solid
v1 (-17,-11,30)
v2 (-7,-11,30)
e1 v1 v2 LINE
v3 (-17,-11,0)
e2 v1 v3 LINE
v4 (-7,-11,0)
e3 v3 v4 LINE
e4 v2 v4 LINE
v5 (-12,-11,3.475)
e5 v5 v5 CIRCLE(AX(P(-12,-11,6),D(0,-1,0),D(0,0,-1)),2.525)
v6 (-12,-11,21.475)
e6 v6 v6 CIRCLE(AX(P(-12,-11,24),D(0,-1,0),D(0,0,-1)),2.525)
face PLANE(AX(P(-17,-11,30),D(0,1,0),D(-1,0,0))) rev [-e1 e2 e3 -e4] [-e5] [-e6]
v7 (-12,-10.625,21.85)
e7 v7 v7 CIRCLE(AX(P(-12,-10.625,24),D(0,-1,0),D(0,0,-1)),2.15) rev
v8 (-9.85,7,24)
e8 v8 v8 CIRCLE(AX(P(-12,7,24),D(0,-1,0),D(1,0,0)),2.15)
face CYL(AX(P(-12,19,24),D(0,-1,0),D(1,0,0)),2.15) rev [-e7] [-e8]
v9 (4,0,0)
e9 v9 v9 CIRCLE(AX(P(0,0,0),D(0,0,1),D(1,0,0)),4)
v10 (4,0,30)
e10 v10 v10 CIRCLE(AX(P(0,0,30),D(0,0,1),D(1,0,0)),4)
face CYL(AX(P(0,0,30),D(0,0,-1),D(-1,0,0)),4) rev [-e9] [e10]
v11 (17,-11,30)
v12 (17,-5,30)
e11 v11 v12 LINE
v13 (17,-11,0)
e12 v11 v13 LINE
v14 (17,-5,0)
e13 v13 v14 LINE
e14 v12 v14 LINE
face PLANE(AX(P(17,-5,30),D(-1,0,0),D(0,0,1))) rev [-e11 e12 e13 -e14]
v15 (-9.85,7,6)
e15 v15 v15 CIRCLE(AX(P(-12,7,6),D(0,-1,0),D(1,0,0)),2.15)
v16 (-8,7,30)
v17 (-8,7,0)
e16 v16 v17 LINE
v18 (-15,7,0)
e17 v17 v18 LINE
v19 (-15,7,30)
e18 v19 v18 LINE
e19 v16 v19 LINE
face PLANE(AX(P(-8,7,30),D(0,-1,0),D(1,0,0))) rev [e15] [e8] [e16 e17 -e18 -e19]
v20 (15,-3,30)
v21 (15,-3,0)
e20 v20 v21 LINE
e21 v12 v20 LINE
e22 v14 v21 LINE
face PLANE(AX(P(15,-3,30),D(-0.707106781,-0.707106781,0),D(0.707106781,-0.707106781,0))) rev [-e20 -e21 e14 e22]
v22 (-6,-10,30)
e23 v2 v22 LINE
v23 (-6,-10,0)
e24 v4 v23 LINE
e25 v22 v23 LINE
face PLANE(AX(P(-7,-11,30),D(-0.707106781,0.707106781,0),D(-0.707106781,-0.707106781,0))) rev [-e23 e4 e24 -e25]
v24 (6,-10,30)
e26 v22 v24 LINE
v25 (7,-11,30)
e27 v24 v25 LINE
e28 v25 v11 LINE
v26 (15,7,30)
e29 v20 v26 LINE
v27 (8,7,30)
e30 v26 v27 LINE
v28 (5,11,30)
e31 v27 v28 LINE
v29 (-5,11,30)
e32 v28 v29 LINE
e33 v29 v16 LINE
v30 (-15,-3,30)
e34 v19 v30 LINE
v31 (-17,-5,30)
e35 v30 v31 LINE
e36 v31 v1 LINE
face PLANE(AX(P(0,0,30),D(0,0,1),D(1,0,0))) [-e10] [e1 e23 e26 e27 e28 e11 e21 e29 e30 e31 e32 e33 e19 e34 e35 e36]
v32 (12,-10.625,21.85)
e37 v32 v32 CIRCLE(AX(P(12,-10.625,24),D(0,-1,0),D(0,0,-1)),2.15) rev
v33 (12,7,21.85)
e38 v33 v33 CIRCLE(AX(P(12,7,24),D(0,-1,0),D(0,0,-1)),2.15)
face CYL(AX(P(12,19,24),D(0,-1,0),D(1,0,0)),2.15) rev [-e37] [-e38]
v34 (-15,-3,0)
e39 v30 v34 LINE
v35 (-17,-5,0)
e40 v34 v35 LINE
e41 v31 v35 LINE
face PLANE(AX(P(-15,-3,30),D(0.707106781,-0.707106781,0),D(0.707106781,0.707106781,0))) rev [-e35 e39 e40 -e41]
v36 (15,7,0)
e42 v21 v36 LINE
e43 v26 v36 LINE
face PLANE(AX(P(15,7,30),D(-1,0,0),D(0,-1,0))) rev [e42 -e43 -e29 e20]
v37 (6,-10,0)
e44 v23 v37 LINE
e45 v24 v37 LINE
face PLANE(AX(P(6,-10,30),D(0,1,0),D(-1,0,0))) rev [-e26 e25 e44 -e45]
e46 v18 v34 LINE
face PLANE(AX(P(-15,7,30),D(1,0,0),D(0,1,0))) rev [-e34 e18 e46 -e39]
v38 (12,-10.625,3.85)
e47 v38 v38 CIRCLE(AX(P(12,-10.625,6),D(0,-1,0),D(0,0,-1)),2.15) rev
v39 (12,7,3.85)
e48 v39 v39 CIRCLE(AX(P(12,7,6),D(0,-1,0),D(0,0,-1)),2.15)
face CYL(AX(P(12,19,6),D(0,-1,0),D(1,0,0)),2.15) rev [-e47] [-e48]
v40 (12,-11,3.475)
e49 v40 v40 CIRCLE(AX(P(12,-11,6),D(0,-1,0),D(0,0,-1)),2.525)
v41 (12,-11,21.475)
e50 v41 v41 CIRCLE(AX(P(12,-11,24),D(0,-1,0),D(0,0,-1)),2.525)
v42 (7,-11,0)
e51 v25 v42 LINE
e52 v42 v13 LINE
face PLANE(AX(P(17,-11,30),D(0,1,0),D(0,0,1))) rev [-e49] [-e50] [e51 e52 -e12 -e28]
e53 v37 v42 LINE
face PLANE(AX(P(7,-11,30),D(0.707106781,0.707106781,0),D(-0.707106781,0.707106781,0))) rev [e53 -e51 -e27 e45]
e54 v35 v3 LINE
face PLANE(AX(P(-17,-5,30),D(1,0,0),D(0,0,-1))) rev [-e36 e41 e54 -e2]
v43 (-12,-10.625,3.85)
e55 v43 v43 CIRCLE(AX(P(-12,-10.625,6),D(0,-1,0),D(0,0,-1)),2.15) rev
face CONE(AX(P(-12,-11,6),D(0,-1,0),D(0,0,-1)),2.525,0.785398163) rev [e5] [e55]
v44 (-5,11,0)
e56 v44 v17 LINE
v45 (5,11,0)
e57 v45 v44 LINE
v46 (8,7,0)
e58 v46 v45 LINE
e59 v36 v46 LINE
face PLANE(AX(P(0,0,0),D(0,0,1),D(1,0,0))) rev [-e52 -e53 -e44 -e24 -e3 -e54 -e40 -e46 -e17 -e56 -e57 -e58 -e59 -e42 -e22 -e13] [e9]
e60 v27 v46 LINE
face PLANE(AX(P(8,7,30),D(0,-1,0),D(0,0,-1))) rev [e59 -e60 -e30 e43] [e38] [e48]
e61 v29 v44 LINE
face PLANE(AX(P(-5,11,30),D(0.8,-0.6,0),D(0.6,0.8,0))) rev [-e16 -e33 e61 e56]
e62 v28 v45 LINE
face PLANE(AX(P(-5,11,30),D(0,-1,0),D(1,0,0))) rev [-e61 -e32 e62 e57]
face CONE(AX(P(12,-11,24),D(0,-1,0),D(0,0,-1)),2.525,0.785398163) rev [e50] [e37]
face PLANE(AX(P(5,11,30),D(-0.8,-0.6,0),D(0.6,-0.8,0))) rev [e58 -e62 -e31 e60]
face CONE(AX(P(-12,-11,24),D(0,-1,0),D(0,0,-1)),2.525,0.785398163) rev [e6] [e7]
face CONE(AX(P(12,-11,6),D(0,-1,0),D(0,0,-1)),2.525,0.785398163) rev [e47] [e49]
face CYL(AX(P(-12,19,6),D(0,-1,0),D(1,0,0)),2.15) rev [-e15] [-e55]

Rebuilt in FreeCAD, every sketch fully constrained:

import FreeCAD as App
import Part
import Sketcher
Q = App.Units.Quantity


def add_polygon(sketch, points):
    """Adds a closed chain of lines whose ends are joined by coincident constraints."""
    first, n = sketch.GeometryCount, len(points)
    for a, b in zip(points, points[1:] + points[:1]):
        sketch.addGeometry(Part.LineSegment(App.Vector(*a, 0), App.Vector(*b, 0)), False)
    for i in range(n):
        sketch.addConstraint(Sketcher.Constraint("Coincident", first + i, 2, first + (i + 1) % n, 1))

doc = App.newDocument("Part")
body = doc.addObject("PartDesign::Body", "Body")

# Sketch on XY plane
sketch1 = doc.addObject("Sketcher::SketchObject", "Sketch")
body.addObject(sketch1)
sketch1.AttachmentSupport = (doc.XY_Plane, [""])
sketch1.MapMode = "FlatFace"
add_polygon(sketch1, [(5, 11), (-5, 11), (-8, 7), (-15, 7), (-15, -3), (-17, -5), (-17, -11), (-7, -11), (-6, -10), (6, -10), (7, -11), (17, -11), (17, -5), (15, -3), (15, 7), (8, 7)])  # lines 0-15
sketch1.addGeometry(Part.Circle(App.Vector(0, 0, 0), App.Vector(0, 0, 1), 4), False)  # 16
sketch1.addConstraint([
    Sketcher.Constraint("Horizontal", 0),
    Sketcher.Constraint("Horizontal", 2),
    Sketcher.Constraint("Vertical", 3),
    Sketcher.Constraint("Vertical", 5),
    Sketcher.Constraint("Horizontal", 6),
    Sketcher.Constraint("Horizontal", 8),
    Sketcher.Constraint("Horizontal", 10),
    Sketcher.Constraint("Vertical", 11),
    Sketcher.Constraint("Vertical", 13),
    Sketcher.Constraint("Horizontal", 14),
    Sketcher.Constraint("Coincident", 16, 3, -1, 1),
    Sketcher.Constraint("Symmetric", 6, 2, 9, 2, -2),
    Sketcher.Constraint("Symmetric", 4, 2, 11, 2, -2),
    Sketcher.Constraint("Symmetric", 3, 2, 12, 2, -2),
    Sketcher.Constraint("Symmetric", 1, 2, 14, 2, -2),
    Sketcher.Constraint("Parallel", 4, 7),
    Sketcher.Constraint("Perpendicular", 7, 9),
    Sketcher.Constraint("Parallel", 9, 12),
    Sketcher.Constraint("Equal", 0, 6),
    Sketcher.Constraint("Equal", 10, 3),
    Sketcher.Constraint("Equal", 1, 15),
    Sketcher.Constraint("Diameter", 16, Q("8 mm")),
    Sketcher.Constraint("DistanceX", 0, 2, 0, 1, Q("10 mm")),
    Sketcher.Constraint("DistanceX", 2, 2, 2, 1, Q("7 mm")),
    Sketcher.Constraint("DistanceX", 8, 1, 8, 2, Q("12 mm")),
    Sketcher.Constraint("DistanceY", 5, 2, 5, 1, Q("6 mm")),
    Sketcher.Constraint("Distance", 1, Q("5 mm")),
    Sketcher.Constraint("DistanceY", -1, 1, 0, 2, Q("11 mm")),
    Sketcher.Constraint("DistanceX", 1, 2, -1, 1, Q("8 mm")),
    Sketcher.Constraint("DistanceX", 4, 2, -1, 1, Q("17 mm")),
])
pad1 = doc.addObject("PartDesign::Pad", "Pad")
body.addObject(pad1)
pad1.Profile = sketch1
pad1.Length = 30

# Sketch on XZ plane
sketch2 = doc.addObject("Sketcher::SketchObject", "Sketch001")
body.addObject(sketch2)
sketch2.AttachmentSupport = (doc.XZ_Plane, [""])
sketch2.MapMode = "FlatFace"
sketch2.AttachmentOffset = App.Placement(App.Vector(0, 0, 11), App.Rotation())
sketch2.addGeometry([
    Part.Circle(App.Vector(-12, 24, 0), App.Vector(0, 0, 1), 2.1),
    Part.Circle(App.Vector(-12, 6, 0), App.Vector(0, 0, 1), 2.1),
    Part.Circle(App.Vector(12, 24, 0), App.Vector(0, 0, 1), 2.1),
    Part.Circle(App.Vector(12, 6, 0), App.Vector(0, 0, 1), 2.1),
], False)
sketch2.addConstraint([
    Sketcher.Constraint("Equal", 0, 1),
    Sketcher.Constraint("Equal", 1, 2),
    Sketcher.Constraint("Equal", 2, 3),
    Sketcher.Constraint("Symmetric", 0, 3, 2, 3, -2),
    Sketcher.Constraint("Symmetric", 1, 3, 3, 3, -2),
    Sketcher.Constraint("Vertical", 0, 3, 1, 3),
    Sketcher.Constraint("Diameter", 0, Q("4.2 mm")),
    Sketcher.Constraint("DistanceX", 0, 3, -1, 1, Q("12 mm")),
    Sketcher.Constraint("DistanceY", -1, 1, 0, 3, Q("24 mm")),
    Sketcher.Constraint("DistanceY", -1, 1, 1, 3, Q("6 mm")),
])
doc.recompute()
hole = doc.addObject("PartDesign::Hole", "Hole")
body.addObject(hole)
hole.Profile = sketch2
hole.ThreadType = "None"
hole.Diameter = 4.2
hole.DepthType = "Dimension"
hole.Depth = 18
hole.DrillPoint = "Angled"
hole.DrillPointAngle = 118
hole.HoleCutType = "Countersink"
hole.HoleCutDiameter = 5.05
hole.HoleCutCountersinkAngle = 90

# Sketch on XZ plane
sketch3 = doc.addObject("Sketcher::SketchObject", "Sketch002")
body.addObject(sketch3)
sketch3.AttachmentSupport = (doc.XZ_Plane, [""])
sketch3.MapMode = "FlatFace"
sketch3.AttachmentOffset = App.Placement(App.Vector(0, 0, 11), App.Rotation())
sketch3.addGeometry([
    Part.Circle(App.Vector(-12, 24, 0), App.Vector(0, 0, 1), 2.1),
    Part.Circle(App.Vector(12, 24, 0), App.Vector(0, 0, 1), 2.1),
    Part.Circle(App.Vector(12, 6, 0), App.Vector(0, 0, 1), 2.1),
    Part.Circle(App.Vector(-12, 6, 0), App.Vector(0, 0, 1), 2.1),
], False)
sketch3.addConstraint([
    Sketcher.Constraint("Equal", 0, 1),
    Sketcher.Constraint("Equal", 1, 2),
    Sketcher.Constraint("Equal", 2, 3),
    Sketcher.Constraint("Symmetric", 0, 3, 1, 3, -2),
    Sketcher.Constraint("Symmetric", 2, 3, 3, 3, -2),
    Sketcher.Constraint("Vertical", 1, 3, 2, 3),
    Sketcher.Constraint("Diameter", 0, Q("4.3 mm")),
    Sketcher.Constraint("DistanceX", 0, 3, -1, 1, Q("12 mm")),
    Sketcher.Constraint("DistanceY", -1, 1, 0, 3, Q("24 mm")),
    Sketcher.Constraint("DistanceY", -1, 1, 2, 3, Q("6 mm")),
])
pocket1 = doc.addObject("PartDesign::Pocket", "Pocket")
body.addObject(pocket1)
pocket1.Profile = sketch3
pocket1.Length = 30

doc.recompute()
